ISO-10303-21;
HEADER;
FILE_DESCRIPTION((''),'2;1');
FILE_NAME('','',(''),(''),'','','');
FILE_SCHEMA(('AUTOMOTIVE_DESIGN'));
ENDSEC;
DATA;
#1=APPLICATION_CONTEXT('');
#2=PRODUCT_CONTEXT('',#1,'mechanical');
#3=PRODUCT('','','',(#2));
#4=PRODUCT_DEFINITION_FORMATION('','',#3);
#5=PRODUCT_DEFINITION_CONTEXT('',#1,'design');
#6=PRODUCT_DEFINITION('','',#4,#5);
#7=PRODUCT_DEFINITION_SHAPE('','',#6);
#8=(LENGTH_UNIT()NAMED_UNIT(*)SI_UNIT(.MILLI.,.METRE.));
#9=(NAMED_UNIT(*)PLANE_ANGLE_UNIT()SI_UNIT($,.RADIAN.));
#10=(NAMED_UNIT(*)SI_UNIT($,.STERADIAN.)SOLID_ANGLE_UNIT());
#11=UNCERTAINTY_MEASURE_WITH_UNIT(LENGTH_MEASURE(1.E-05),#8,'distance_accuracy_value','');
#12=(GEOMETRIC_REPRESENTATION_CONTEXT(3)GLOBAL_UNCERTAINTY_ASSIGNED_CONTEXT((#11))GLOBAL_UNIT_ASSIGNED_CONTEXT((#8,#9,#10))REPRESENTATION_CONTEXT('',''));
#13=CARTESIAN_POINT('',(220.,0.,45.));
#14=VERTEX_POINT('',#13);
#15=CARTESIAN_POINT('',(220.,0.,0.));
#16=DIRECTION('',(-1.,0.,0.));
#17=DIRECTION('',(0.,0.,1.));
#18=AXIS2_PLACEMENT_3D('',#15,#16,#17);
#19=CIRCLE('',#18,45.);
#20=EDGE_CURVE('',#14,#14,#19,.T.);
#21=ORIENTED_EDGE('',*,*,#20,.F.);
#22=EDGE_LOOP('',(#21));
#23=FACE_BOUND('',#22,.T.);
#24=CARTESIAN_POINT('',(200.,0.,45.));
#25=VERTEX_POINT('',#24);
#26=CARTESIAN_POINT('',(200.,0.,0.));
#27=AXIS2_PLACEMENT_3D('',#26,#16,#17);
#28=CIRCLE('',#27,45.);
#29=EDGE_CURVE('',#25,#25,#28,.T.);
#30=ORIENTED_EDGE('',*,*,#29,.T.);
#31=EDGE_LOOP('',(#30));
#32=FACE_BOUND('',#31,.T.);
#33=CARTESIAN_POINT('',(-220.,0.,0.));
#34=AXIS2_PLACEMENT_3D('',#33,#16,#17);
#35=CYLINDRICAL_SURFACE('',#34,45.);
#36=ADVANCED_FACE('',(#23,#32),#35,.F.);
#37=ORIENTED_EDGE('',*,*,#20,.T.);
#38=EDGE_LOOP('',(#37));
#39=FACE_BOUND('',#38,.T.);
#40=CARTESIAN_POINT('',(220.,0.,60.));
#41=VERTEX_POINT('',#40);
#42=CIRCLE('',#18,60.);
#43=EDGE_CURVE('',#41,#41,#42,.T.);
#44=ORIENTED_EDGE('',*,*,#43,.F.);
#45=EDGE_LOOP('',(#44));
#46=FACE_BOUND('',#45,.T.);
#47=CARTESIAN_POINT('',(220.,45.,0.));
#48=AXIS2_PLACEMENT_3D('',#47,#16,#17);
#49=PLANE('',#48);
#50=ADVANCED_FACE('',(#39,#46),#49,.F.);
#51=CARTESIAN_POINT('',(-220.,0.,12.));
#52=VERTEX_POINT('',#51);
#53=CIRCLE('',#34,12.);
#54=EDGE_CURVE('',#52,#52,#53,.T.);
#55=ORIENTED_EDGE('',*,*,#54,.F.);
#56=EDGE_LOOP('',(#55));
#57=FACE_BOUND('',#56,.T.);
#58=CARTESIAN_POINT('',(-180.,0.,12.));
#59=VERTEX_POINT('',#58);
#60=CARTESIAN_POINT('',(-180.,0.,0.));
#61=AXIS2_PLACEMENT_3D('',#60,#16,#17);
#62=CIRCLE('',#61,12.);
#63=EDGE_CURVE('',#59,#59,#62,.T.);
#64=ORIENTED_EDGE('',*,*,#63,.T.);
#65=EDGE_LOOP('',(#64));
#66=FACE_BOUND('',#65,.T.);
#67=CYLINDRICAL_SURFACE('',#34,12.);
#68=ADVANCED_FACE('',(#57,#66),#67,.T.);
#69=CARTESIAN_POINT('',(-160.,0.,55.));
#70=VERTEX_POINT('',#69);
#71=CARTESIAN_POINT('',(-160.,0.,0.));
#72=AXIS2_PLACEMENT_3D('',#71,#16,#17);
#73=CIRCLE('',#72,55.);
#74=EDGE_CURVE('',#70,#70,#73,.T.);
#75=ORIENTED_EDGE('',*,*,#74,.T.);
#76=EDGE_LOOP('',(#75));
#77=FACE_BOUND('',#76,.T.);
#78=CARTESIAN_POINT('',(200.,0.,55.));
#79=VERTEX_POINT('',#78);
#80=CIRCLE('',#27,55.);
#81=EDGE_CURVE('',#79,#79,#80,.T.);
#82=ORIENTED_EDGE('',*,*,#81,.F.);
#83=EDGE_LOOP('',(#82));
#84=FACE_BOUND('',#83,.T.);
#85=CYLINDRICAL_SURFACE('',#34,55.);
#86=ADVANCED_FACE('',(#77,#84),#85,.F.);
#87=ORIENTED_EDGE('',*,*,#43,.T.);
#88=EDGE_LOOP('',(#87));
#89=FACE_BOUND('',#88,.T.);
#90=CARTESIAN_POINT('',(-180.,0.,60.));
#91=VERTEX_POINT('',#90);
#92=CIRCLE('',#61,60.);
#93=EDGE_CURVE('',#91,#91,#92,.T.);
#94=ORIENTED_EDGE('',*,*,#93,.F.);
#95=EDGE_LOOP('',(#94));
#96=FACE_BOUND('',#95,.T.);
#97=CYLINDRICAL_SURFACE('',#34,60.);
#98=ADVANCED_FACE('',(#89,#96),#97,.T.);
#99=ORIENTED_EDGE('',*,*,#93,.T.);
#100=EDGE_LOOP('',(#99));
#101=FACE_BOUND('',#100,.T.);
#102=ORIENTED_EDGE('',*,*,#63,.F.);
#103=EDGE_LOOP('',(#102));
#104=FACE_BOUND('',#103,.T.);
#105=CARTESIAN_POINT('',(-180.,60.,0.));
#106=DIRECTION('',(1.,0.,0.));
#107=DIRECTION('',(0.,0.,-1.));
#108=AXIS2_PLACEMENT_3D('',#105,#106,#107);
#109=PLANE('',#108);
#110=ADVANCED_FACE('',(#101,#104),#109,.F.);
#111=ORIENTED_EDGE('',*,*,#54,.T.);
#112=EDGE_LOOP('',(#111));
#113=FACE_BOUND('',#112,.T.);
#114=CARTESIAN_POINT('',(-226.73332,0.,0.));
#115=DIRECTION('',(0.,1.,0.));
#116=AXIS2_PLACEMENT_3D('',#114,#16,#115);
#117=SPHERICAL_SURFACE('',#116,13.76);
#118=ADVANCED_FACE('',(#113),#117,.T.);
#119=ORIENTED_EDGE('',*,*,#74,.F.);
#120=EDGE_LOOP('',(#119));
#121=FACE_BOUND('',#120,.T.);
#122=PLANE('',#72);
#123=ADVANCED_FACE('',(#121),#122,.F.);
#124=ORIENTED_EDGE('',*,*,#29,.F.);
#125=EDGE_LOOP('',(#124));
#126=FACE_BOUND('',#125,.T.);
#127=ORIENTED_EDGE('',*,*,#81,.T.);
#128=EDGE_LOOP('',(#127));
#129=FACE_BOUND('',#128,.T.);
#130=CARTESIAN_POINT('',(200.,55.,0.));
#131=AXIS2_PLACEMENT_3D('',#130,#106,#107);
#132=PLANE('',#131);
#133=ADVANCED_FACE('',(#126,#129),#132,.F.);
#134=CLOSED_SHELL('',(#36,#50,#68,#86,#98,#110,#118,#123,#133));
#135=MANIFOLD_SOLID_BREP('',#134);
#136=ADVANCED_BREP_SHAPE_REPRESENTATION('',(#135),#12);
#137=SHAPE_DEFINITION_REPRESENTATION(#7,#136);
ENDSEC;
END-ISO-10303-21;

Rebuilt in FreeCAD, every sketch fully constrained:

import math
import FreeCAD as App
import Part
import Sketcher

V = App.Vector
Q = App.Units.Quantity

doc = App.newDocument("Part")
params = doc.addObject("Spreadsheet::Sheet", "Params")
for row, (alias, value) in enumerate([
    ("sketch1_width", "400 mm"),
    ("sketch1_width2", "40 mm"),
    ("sketch1_width3", "60 mm"),
    ("sketch1_width4", "360 mm"),
    ("sketch1_height", "15 mm"),
    ("revolution_angle", "360 deg"),
    ("sketch2_radius", "13.76 mm"),
    ("revolution2_angle", "360 deg"),
], start=1):
    params.set(f"A{row}", alias)
    params.set(f"B{row}", "=" + value)
    params.setAlias(f"B{row}", alias)

body = doc.addObject("PartDesign::Body", "Body")

# Sketch on XY plane
sketch1 = doc.addObject("Sketcher::SketchObject", "Sketch")
body.addObject(sketch1)
sketch1.AttachmentSupport = (doc.XY_Plane, [""])
sketch1.MapMode = "FlatFace"
sketch1.addGeometry([
    Part.LineSegment(V(220, 45, 0), V(220, 60, 0)),  # 0
    Part.LineSegment(V(220, 60, 0), V(-180, 60, 0)),  # 1
    Part.LineSegment(V(-180, 60, 0), V(-180, 12, 0)),  # 2
    Part.LineSegment(V(-180, 12, 0), V(-220, 12, 0)),  # 3
    Part.LineSegment(V(-220, 12, 0), V(-220, 0, 0)),  # 4
    Part.LineSegment(V(-220, 0, 0), V(-160, 0, 0)),  # 5
    Part.LineSegment(V(-160, 0, 0), V(-160, 55, 0)),  # 6
    Part.LineSegment(V(-160, 55, 0), V(200, 55, 0)),  # 7
    Part.LineSegment(V(200, 55, 0), V(200, 45, 0)),  # 8
    Part.LineSegment(V(200, 45, 0), V(220, 45, 0)),  # 9
], False)
sketch1.addConstraint([
    Sketcher.Constraint("Coincident", 0, 2, 1, 1),
    Sketcher.Constraint("Coincident", 1, 2, 2, 1),
    Sketcher.Constraint("Coincident", 2, 2, 3, 1),
    Sketcher.Constraint("Coincident", 3, 2, 4, 1),
    Sketcher.Constraint("Coincident", 4, 2, 5, 1),
    Sketcher.Constraint("Coincident", 5, 2, 6, 1),
    Sketcher.Constraint("Coincident", 6, 2, 7, 1),
    Sketcher.Constraint("Coincident", 7, 2, 8, 1),
    Sketcher.Constraint("Coincident", 8, 2, 9, 1),
    Sketcher.Constraint("Coincident", 9, 2, 0, 1),
    Sketcher.Constraint("Vertical", 0),
    Sketcher.Constraint("Horizontal", 1),
    Sketcher.Constraint("Vertical", 2),
    Sketcher.Constraint("Horizontal", 3),
    Sketcher.Constraint("Vertical", 4),
    Sketcher.Constraint("Horizontal", 5),
    Sketcher.Constraint("Vertical", 6),
    Sketcher.Constraint("Horizontal", 7),
    Sketcher.Constraint("Vertical", 8),
    Sketcher.Constraint("Horizontal", 9),
    Sketcher.Constraint("PointOnObject", 4, 2, -1),
    Sketcher.Constraint("DistanceX", 1, 2, 1, 1, Q("400 mm")),
    Sketcher.Constraint("DistanceX", 3, 2, 3, 1, Q("40 mm")),
    Sketcher.Constraint("DistanceX", 5, 1, 5, 2, Q("60 mm")),
    Sketcher.Constraint("DistanceX", 7, 1, 7, 2, Q("360 mm")),
    Sketcher.Constraint("DistanceY", 0, 1, 0, 2, Q("15 mm")),
    Sketcher.Constraint("DistanceY", 2, 2, 2, 1, Q("48 mm")),
    Sketcher.Constraint("DistanceY", 4, 2, 4, 1, Q("12 mm")),
    Sketcher.Constraint("DistanceY", 6, 1, 6, 2, Q("55 mm")),
    Sketcher.Constraint("DistanceX", -1, 1, 0, 2, Q("220 mm")),
])
sketch1.setExpression("Constraints[21]", "Params.sketch1_width")
sketch1.setExpression("Constraints[22]", "Params.sketch1_width2")
sketch1.setExpression("Constraints[23]", "Params.sketch1_width3")
sketch1.setExpression("Constraints[24]", "Params.sketch1_width4")
sketch1.setExpression("Constraints[25]", "Params.sketch1_height")
revolution = doc.addObject("PartDesign::Revolution", "Revolution")
body.addObject(revolution)
revolution.Profile = sketch1
revolution.ReferenceAxis = (sketch1, ["H_Axis"])
revolution.setExpression("Angle", "Params.revolution_angle")

# Sketch on XY plane
sketch2 = doc.addObject("Sketcher::SketchObject", "Sketch001")
body.addObject(sketch2)
sketch2.AttachmentSupport = (doc.XY_Plane, [""])
sketch2.MapMode = "FlatFace"
sketch2.addGeometry([
    Part.LineSegment(V(-240, 0, 0), V(-213, 0, 0)),
    Part.ArcOfCircle(Part.Circle(V(-227, 0, 0), V(0, 0, 1), 14), math.radians(0), math.radians(180)),
], False)
sketch2.addConstraint([
    Sketcher.Constraint("Coincident", 0, 1, 1, 2),
    Sketcher.Constraint("Coincident", 1, 1, 0, 2),
    Sketcher.Constraint("Horizontal", 0),
    Sketcher.Constraint("PointOnObject", 1, 3, -1),
    Sketcher.Constraint("PointOnObject", 0, 1, -1),
    Sketcher.Constraint("Radius", 1, Q("13.76 mm")),
    Sketcher.Constraint("DistanceX", 1, 3, -1, 1, Q("226.73332 mm")),
])
sketch2.setExpression("Constraints[5]", "Params.sketch2_radius")
revolution2 = doc.addObject("PartDesign::Revolution", "Revolution001")
body.addObject(revolution2)
revolution2.Profile = sketch2
revolution2.ReferenceAxis = (sketch2, ["H_Axis"])
revolution2.setExpression("Angle", "Params.revolution2_angle")

doc.recompute()
